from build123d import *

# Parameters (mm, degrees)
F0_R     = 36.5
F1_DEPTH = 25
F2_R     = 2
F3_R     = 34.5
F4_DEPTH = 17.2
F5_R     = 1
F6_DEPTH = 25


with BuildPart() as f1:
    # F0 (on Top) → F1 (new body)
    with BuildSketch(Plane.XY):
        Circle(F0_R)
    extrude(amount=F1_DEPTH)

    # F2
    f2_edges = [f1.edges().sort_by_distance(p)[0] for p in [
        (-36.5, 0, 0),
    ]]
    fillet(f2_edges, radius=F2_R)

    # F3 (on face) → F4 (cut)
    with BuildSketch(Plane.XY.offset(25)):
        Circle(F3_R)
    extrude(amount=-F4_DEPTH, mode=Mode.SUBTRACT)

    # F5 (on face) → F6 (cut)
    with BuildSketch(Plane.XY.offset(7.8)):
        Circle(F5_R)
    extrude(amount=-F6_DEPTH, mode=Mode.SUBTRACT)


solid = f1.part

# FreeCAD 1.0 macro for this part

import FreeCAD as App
import Part
import Sketcher
Q = App.Units.Quantity


def edges_at(feature, points):
    """Names of the edges that pass closest to the given points."""
    edges = feature.Shape.Edges
    near = lambda p: min(range(len(edges)), key=lambda i: edges[i].distToShape(Part.Vertex(*p))[0])
    return sorted({f"Edge{near(p) + 1}" for p in points})

doc = App.newDocument("Part")
params = doc.addObject("Spreadsheet::Sheet", "Params")
for row, (alias, value) in enumerate([
    ("sketch1_diameter", "73 mm"),
    ("pad1_length", "25 mm"),
    ("fillet_radius", "2 mm"),
    ("sketch2_diameter", "69 mm"),
    ("pocket1_length", "17.2 mm"),
    ("sketch3_diameter", "2 mm"),
    ("pocket2_length", "25 mm"),
], start=1):
    params.set(f"A{row}", alias)
    params.set(f"B{row}", "=" + value)
    params.setAlias(f"B{row}", alias)

body = doc.addObject("PartDesign::Body", "Body")

# Sketch on XY plane
sketch1 = body.newObject("Sketcher::SketchObject", "Sketch")
sketch1.AttachmentSupport = (doc.getObject("XY_Plane"), [""])
sketch1.MapMode = "FlatFace"
sketch1.addGeometry(Part.Circle(App.Vector(0, 0, 0), App.Vector(0, 0, 1), 36), False)
sketch1.addConstraint(Sketcher.Constraint("Coincident", 0, 3, -1, 1))
sketch1.addConstraint(Sketcher.Constraint("Diameter", 0, Q("73 mm")))
sketch1.setExpression("Constraints[1]", "Params.sketch1_diameter")
pad1 = body.newObject("PartDesign::Pad", "Pad")
pad1.Profile = sketch1
pad1.setExpression("Length", "Params.pad1_length")
doc.recompute()

fillet = body.newObject("PartDesign::Fillet", "Fillet")
fillet.Base = (pad1, edges_at(pad1, [(-36.5, 0, 0)]))
fillet.setExpression("Radius", "Params.fillet_radius")

# Sketch on XY plane
sketch2 = body.newObject("Sketcher::SketchObject", "Sketch001")
sketch2.AttachmentSupport = (doc.getObject("XY_Plane"), [""])
sketch2.MapMode = "FlatFace"
sketch2.AttachmentOffset = App.Placement(App.Vector(0, 0, 25), App.Rotation())
sketch2.addGeometry(Part.Circle(App.Vector(0, 0, 0), App.Vector(0, 0, 1), 34), False)
sketch2.addConstraint(Sketcher.Constraint("Coincident", 0, 3, -1, 1))
sketch2.addConstraint(Sketcher.Constraint("Diameter", 0, Q("69 mm")))
sketch2.setExpression("Constraints[1]", "Params.sketch2_diameter")
pocket1 = body.newObject("PartDesign::Pocket", "Pocket")
pocket1.Profile = sketch2
pocket1.setExpression("Length", "Params.pocket1_length")

# Sketch on XY plane
sketch3 = body.newObject("Sketcher::SketchObject", "Sketch002")
sketch3.AttachmentSupport = (doc.getObject("XY_Plane"), [""])
sketch3.MapMode = "FlatFace"
sketch3.AttachmentOffset = App.Placement(App.Vector(0, 0, 7.8), App.Rotation())
sketch3.addGeometry(Part.Circle(App.Vector(0, 0, 0), App.Vector(0, 0, 1), 1), False)
sketch3.addConstraint(Sketcher.Constraint("Coincident", 0, 3, -1, 1))
sketch3.addConstraint(Sketcher.Constraint("Diameter", 0, Q("2 mm")))
sketch3.setExpression("Constraints[1]", "Params.sketch3_diameter")
pocket2 = body.newObject("PartDesign::Pocket", "Pocket001")
pocket2.Profile = sketch3
pocket2.setExpression("Length", "Params.pocket2_length")

doc.recompute()
